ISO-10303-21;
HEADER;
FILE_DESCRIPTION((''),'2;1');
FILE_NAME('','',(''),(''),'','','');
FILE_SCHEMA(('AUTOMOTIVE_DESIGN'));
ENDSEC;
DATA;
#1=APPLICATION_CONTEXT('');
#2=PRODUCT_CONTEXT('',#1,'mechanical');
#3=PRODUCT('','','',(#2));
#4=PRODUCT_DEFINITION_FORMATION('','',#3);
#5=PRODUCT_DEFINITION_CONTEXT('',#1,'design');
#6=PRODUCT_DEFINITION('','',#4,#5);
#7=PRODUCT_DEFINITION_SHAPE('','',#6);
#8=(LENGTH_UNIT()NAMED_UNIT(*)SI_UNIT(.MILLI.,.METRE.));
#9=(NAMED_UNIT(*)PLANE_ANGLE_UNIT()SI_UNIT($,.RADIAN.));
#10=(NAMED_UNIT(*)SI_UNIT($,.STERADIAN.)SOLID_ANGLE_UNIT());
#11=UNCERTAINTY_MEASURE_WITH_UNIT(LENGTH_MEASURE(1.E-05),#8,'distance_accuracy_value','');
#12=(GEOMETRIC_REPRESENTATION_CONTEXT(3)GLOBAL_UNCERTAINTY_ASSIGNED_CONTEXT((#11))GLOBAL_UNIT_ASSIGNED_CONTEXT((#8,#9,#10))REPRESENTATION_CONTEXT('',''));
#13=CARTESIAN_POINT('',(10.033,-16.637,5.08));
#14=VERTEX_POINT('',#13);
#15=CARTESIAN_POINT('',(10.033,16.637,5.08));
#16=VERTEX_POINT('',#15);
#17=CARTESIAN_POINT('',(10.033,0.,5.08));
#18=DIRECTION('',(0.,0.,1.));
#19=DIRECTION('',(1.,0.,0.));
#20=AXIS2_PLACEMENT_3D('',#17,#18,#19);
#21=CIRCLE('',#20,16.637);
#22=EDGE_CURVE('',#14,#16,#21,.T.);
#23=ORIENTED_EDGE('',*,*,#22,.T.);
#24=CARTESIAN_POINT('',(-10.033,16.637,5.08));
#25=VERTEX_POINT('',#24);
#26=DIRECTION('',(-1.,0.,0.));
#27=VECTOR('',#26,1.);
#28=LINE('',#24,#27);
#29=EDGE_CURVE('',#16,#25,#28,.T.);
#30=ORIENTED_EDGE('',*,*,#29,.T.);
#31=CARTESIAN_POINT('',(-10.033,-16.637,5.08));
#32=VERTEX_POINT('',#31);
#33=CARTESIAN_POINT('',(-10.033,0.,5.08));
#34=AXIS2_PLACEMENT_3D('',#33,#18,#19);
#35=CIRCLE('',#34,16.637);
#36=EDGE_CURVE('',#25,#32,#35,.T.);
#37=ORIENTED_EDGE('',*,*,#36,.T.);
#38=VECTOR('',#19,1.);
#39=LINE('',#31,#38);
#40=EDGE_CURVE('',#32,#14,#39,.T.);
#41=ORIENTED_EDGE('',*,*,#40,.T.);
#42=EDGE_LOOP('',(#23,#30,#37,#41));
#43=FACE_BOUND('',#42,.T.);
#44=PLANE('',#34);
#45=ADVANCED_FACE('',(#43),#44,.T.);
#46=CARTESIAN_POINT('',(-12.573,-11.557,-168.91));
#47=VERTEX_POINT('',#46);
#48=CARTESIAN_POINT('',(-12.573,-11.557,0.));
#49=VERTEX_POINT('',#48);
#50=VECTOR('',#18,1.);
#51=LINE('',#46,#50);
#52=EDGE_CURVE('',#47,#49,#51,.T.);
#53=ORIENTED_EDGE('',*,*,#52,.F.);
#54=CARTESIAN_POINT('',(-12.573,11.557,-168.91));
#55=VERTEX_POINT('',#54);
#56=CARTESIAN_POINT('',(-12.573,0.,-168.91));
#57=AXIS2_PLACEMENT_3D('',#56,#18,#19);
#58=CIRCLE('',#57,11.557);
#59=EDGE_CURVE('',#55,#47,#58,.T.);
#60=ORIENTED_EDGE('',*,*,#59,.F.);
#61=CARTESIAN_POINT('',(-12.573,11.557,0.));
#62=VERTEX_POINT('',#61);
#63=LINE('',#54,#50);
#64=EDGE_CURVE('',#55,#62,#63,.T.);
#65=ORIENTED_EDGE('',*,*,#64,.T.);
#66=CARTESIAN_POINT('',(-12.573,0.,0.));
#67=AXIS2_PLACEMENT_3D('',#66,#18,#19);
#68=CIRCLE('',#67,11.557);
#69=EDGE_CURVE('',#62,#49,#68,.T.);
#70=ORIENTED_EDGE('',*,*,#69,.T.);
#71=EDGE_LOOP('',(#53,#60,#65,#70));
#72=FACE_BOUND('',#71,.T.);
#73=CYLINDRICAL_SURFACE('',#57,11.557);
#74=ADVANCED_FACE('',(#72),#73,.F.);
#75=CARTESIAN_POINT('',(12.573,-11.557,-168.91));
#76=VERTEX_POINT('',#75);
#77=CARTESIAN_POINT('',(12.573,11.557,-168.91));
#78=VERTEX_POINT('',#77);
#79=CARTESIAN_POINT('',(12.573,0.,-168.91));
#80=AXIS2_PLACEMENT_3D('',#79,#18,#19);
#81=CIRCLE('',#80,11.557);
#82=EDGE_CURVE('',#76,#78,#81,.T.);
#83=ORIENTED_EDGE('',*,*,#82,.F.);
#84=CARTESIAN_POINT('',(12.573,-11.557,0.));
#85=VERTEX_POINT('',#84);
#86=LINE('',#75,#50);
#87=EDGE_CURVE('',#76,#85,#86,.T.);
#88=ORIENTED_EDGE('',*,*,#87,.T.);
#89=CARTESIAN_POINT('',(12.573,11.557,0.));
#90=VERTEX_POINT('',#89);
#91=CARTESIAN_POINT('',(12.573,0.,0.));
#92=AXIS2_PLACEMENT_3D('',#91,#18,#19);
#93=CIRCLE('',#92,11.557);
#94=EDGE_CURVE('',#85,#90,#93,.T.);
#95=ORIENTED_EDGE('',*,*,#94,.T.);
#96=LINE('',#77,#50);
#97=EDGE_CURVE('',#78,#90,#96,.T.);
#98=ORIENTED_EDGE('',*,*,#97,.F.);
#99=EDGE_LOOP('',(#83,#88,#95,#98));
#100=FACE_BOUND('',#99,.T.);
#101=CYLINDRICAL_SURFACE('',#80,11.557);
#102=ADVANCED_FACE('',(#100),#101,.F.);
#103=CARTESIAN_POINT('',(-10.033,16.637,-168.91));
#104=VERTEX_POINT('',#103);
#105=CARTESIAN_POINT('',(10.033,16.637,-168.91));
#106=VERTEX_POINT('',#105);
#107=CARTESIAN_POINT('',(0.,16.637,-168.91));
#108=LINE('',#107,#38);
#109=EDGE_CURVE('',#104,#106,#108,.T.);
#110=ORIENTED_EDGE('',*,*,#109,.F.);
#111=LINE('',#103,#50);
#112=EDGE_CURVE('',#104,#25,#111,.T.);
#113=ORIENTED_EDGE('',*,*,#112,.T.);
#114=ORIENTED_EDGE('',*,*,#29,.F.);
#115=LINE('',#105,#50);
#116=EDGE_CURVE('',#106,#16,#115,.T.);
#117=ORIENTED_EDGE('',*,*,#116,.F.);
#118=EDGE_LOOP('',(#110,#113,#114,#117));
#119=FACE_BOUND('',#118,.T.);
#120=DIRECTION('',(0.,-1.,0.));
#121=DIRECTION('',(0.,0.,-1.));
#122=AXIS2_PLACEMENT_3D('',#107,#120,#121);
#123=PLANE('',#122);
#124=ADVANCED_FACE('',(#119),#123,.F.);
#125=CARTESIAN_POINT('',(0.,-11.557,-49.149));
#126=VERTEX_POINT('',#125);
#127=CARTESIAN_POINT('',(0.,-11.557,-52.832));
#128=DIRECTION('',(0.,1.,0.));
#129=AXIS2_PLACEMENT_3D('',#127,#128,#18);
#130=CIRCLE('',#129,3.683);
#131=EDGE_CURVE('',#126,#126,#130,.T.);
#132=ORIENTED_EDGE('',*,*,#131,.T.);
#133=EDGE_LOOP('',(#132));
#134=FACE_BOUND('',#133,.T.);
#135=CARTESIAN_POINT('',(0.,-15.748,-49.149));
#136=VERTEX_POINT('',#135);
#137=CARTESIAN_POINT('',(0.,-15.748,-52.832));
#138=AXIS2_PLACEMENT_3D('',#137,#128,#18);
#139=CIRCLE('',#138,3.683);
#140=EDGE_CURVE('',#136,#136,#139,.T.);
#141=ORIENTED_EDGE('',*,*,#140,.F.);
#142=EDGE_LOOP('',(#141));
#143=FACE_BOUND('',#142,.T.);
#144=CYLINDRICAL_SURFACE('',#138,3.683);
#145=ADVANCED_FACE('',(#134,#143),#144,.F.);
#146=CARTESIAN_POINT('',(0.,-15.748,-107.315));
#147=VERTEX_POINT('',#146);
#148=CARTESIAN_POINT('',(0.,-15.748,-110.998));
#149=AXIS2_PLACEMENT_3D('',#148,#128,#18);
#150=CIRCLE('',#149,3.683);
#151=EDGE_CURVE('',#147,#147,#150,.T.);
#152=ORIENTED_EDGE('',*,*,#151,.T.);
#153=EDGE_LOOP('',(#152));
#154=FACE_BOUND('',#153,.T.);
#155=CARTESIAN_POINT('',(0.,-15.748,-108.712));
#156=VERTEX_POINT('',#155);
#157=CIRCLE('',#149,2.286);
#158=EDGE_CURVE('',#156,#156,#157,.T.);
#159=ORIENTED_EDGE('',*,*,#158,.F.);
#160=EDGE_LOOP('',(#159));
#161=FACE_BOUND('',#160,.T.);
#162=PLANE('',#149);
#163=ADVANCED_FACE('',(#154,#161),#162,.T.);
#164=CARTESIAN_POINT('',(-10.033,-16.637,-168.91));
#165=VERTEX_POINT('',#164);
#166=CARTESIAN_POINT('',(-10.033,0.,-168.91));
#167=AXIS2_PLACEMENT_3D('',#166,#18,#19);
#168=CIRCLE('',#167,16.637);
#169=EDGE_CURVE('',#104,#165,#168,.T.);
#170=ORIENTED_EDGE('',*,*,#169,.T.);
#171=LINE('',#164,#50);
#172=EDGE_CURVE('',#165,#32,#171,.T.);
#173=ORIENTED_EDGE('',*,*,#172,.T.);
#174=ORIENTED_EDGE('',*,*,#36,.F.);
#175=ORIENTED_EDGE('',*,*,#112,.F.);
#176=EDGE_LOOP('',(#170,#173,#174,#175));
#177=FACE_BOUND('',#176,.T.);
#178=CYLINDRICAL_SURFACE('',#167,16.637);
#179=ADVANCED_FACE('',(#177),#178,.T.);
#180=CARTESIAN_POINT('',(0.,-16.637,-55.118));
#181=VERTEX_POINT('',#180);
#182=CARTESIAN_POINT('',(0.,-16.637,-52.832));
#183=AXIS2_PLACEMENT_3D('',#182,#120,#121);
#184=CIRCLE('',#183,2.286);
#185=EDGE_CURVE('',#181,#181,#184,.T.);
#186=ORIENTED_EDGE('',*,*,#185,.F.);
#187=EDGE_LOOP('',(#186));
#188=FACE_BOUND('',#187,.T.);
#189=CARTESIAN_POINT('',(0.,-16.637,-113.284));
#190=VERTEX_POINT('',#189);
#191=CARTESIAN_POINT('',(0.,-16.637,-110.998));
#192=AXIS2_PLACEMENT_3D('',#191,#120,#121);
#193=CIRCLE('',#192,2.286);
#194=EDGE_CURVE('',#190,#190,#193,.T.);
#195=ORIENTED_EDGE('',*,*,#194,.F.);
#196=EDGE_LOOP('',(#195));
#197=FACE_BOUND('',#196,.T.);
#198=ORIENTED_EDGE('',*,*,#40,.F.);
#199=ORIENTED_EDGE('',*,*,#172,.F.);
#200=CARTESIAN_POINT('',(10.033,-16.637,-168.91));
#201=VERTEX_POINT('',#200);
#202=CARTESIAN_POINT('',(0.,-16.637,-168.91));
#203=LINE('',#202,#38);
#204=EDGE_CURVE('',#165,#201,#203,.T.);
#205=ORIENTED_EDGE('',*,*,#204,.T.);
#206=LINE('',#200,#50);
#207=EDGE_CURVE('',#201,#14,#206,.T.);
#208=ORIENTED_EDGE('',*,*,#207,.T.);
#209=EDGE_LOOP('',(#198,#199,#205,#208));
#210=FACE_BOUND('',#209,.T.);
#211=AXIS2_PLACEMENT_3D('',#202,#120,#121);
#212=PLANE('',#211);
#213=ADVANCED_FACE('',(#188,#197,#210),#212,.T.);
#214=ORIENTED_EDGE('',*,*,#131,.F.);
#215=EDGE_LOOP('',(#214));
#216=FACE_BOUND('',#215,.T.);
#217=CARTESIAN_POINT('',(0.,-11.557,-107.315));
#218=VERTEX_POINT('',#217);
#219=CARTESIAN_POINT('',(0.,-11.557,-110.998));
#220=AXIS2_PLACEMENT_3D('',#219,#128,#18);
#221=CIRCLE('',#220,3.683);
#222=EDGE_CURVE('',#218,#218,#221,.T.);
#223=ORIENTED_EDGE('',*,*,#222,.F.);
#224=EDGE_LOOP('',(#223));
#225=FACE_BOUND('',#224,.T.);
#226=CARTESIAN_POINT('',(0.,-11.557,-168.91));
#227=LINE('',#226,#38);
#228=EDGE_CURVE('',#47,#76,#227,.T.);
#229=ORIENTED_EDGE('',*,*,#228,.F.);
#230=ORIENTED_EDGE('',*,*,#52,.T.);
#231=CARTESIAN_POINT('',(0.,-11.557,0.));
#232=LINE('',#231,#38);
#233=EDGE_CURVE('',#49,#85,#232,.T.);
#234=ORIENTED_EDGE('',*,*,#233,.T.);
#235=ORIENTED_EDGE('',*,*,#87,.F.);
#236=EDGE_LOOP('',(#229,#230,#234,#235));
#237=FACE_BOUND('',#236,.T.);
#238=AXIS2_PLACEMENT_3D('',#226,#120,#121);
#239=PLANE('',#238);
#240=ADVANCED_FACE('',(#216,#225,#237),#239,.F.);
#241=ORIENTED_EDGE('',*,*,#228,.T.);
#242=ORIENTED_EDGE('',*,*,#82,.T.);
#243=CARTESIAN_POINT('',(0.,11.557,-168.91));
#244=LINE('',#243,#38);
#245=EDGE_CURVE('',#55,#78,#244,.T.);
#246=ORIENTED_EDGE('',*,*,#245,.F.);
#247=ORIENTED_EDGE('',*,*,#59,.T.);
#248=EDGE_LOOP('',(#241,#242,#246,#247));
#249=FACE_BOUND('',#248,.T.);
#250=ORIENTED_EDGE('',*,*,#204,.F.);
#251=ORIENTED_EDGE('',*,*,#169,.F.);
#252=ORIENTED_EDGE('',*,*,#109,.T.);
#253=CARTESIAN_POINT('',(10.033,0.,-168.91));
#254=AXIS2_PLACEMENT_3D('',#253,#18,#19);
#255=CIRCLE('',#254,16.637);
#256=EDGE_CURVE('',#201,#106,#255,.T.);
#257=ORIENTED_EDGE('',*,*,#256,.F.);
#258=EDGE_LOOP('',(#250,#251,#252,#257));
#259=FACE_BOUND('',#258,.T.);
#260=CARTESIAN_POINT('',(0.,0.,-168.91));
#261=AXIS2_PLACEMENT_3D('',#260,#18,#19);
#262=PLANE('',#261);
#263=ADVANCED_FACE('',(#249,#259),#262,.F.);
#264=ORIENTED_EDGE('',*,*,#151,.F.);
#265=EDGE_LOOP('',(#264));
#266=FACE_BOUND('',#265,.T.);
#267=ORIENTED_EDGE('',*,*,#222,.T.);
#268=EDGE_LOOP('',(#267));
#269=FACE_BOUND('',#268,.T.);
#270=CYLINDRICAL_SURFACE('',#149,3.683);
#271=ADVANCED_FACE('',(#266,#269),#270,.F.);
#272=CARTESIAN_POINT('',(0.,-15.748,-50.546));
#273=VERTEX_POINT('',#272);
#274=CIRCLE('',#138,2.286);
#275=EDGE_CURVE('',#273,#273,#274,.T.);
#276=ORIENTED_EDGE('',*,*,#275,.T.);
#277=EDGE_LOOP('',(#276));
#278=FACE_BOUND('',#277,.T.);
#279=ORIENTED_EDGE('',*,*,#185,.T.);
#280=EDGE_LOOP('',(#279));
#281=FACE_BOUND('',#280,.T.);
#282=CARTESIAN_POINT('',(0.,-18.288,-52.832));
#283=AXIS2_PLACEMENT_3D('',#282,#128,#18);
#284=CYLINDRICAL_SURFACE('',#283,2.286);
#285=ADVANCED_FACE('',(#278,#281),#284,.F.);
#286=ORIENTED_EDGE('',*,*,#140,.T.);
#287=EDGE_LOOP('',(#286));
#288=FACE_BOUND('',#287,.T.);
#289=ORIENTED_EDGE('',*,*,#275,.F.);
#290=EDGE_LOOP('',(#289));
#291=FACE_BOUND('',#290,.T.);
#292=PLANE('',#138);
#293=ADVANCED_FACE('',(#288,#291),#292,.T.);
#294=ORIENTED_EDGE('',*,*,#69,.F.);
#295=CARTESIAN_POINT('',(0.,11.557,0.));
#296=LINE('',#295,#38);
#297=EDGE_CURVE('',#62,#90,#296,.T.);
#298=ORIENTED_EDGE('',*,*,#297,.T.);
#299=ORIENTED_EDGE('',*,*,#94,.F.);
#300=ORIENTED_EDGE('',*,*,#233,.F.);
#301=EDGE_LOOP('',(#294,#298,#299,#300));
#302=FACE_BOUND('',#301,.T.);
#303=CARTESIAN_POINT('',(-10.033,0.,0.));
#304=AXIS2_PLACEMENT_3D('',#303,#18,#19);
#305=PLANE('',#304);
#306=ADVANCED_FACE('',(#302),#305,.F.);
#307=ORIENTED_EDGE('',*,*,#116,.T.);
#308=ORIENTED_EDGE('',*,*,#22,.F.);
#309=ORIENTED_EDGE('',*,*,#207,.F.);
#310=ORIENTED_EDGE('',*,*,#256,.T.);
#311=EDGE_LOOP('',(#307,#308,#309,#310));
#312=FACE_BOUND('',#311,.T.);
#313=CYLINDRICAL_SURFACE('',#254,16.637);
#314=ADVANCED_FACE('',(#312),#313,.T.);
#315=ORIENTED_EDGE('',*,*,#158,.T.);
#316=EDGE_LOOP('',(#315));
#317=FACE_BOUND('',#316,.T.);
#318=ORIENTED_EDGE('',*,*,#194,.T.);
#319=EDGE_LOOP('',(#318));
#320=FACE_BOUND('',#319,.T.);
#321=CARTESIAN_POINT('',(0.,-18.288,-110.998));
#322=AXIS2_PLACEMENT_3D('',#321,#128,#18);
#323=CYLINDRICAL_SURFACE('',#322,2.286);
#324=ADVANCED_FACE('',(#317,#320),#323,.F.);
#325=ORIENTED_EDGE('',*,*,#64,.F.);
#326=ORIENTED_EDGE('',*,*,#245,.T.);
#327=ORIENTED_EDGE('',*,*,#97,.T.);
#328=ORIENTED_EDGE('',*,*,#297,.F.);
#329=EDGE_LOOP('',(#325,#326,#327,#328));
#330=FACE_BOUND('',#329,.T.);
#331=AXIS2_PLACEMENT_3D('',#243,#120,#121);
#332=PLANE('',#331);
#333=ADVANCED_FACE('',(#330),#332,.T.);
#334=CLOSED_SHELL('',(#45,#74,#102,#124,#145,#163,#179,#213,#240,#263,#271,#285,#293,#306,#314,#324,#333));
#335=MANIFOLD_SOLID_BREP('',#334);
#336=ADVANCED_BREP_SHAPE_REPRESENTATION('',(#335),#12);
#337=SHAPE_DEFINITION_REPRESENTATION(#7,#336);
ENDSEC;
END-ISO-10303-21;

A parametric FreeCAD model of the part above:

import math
import FreeCAD as App
import Part
import Sketcher

V = App.Vector
Q = App.Units.Quantity

doc = App.newDocument("Part")
body = doc.addObject("PartDesign::Body", "Body")

# Sketch on XY plane
sketch1 = body.newObject("Sketcher::SketchObject", "Sketch")
sketch1.AttachmentSupport = (doc.getObject("XY_Plane"), [""])
sketch1.MapMode = "FlatFace"
sketch1.addGeometry(Part.ArcOfCircle(Part.Circle(V(10.033, 0, 0), V(0, 0, 1), 16.637), math.radians(0), math.radians(90)), False)
sketch1.addGeometry(Part.LineSegment(V(10.033, 16.637, 0), V(-10.033, 16.637, 0)), False)
sketch1.addGeometry(Part.ArcOfCircle(Part.Circle(V(-10.033, 0, 0), V(0, 0, 1), 16.637), math.radians(90), math.radians(180)), False)
sketch1.addGeometry(Part.ArcOfCircle(Part.Circle(V(-10.033, 0, 0), V(0, 0, 1), 16.637), math.radians(180), math.radians(270)), False)
sketch1.addGeometry(Part.LineSegment(V(-10.033, -16.637, 0), V(10.033, -16.637, 0)), False)
sketch1.addGeometry(Part.ArcOfCircle(Part.Circle(V(10.033, 0, 0), V(0, 0, 1), 16.637), math.radians(-90), math.radians(0)), False)
sketch1.addGeometry(Part.ArcOfCircle(Part.Circle(V(-12.573, 0, 0), V(0, 0, 1), 11.557), math.radians(90), math.radians(180)), False)
sketch1.addGeometry(Part.LineSegment(V(-12.573, 11.557, 0), V(12.573, 11.557, 0)), False)
sketch1.addGeometry(Part.ArcOfCircle(Part.Circle(V(12.573, 0, 0), V(0, 0, 1), 11.557), math.radians(0), math.radians(90)), False)
sketch1.addGeometry(Part.ArcOfCircle(Part.Circle(V(12.573, 0, 0), V(0, 0, 1), 11.557), math.radians(-90), math.radians(0)), False)
sketch1.addGeometry(Part.LineSegment(V(12.573, -11.557, 0), V(-12.573, -11.557, 0)), False)
sketch1.addGeometry(Part.ArcOfCircle(Part.Circle(V(-12.573, 0, 0), V(0, 0, 1), 11.557), math.radians(-180), math.radians(-90)), False)
sketch1.addConstraint(Sketcher.Constraint("Tangent", 0, 2, 1, 1))
sketch1.addConstraint(Sketcher.Constraint("Tangent", 1, 2, 2, 1))
sketch1.addConstraint(Sketcher.Constraint("Tangent", 2, 2, 3, 1))
sketch1.addConstraint(Sketcher.Constraint("Tangent", 3, 2, 4, 1))
sketch1.addConstraint(Sketcher.Constraint("Tangent", 4, 2, 5, 1))
sketch1.addConstraint(Sketcher.Constraint("Tangent", 5, 2, 0, 1))
sketch1.addConstraint(Sketcher.Constraint("Tangent", 6, 1, 7, 1))
sketch1.addConstraint(Sketcher.Constraint("Tangent", 7, 2, 8, 2))
sketch1.addConstraint(Sketcher.Constraint("Tangent", 8, 1, 9, 2))
sketch1.addConstraint(Sketcher.Constraint("Tangent", 9, 1, 10, 1))
sketch1.addConstraint(Sketcher.Constraint("Tangent", 10, 2, 11, 2))
sketch1.addConstraint(Sketcher.Constraint("Tangent", 11, 1, 6, 2))
sketch1.addConstraint(Sketcher.Constraint("Horizontal", 1))
sketch1.addConstraint(Sketcher.Constraint("Horizontal", 4))
sketch1.addConstraint(Sketcher.Constraint("Horizontal", 7))
sketch1.addConstraint(Sketcher.Constraint("Horizontal", 10))
sketch1.addConstraint(Sketcher.Constraint("Equal", 0, 2))
sketch1.addConstraint(Sketcher.Constraint("Equal", 2, 3))
sketch1.addConstraint(Sketcher.Constraint("Equal", 6, 8))
sketch1.addConstraint(Sketcher.Constraint("Equal", 8, 9))
sketch1.addConstraint(Sketcher.Constraint("Symmetric", 0, 3, 2, 3, -1, 1))
sketch1.addConstraint(Sketcher.Constraint("Symmetric", 6, 3, 8, 3, -1, 1))
sketch1.addConstraint(Sketcher.Constraint("PointOnObject", 2, 2, -1))
sketch1.addConstraint(Sketcher.Constraint("PointOnObject", 5, 2, -1))
sketch1.addConstraint(Sketcher.Constraint("PointOnObject", 8, 1, -1))
sketch1.addConstraint(Sketcher.Constraint("PointOnObject", 11, 1, -1))
sketch1.addConstraint(Sketcher.Constraint("Radius", 0, Q("0.655 in")))
sketch1.addConstraint(Sketcher.Constraint("Radius", 6, Q("0.455 in")))
sketch1.addConstraint(Sketcher.Constraint("DistanceX", 1, 2, 1, 1, Q("0.79 in")))
sketch1.addConstraint(Sketcher.Constraint("DistanceX", 7, 1, 7, 2, Q("0.99 in")))
pad1 = body.newObject("PartDesign::Pad", "Pad")
pad1.Profile = sketch1
pad1.Length = Q("6.65 in")
pad1.Reversed = True

# Sketch on XY plane
sketch2 = body.newObject("Sketcher::SketchObject", "Sketch001")
sketch2.AttachmentSupport = (doc.getObject("XY_Plane"), [""])
sketch2.MapMode = "FlatFace"
sketch2.addGeometry(Part.LineSegment(V(10.033, 16.637, 0), V(-10.033, 16.637, 0)), False)
sketch2.addGeometry(Part.ArcOfCircle(Part.Circle(V(-10.033, 0, 0), V(0, 0, 1), 16.637), math.radians(90), math.radians(270)), False)
sketch2.addGeometry(Part.LineSegment(V(-10.033, -16.637, 0), V(10.033, -16.637, 0)), False)
sketch2.addGeometry(Part.ArcOfCircle(Part.Circle(V(10.033, 0, 0), V(0, 0, 1), 16.637), math.radians(-90), math.radians(90)), False)
sketch2.addConstraint(Sketcher.Constraint("Tangent", 0, 2, 1, 1))
sketch2.addConstraint(Sketcher.Constraint("Tangent", 1, 2, 2, 1))
sketch2.addConstraint(Sketcher.Constraint("Tangent", 2, 2, 3, 1))
sketch2.addConstraint(Sketcher.Constraint("Tangent", 3, 2, 0, 1))
sketch2.addConstraint(Sketcher.Constraint("Horizontal", 0))
sketch2.addConstraint(Sketcher.Constraint("Horizontal", 2))
sketch2.addConstraint(Sketcher.Constraint("Symmetric", 1, 3, 3, 3, -1, 1))
sketch2.addConstraint(Sketcher.Constraint("Radius", 1, Q("0.655 in")))
sketch2.addConstraint(Sketcher.Constraint("DistanceX", 0, 2, 0, 1, Q("0.79 in")))
pad2 = body.newObject("PartDesign::Pad", "Pad001")
pad2.Profile = sketch2
pad2.Length = Q("0.2 in")

# Sketch on XZ plane
sketch3 = body.newObject("Sketcher::SketchObject", "Sketch002")
sketch3.AttachmentSupport = (doc.getObject("XZ_Plane"), [""])
sketch3.MapMode = "FlatFace"
sketch3.AttachmentOffset = App.Placement(V(0, 0, 0.455 * 25.4), App.Rotation())
sketch3.addGeometry(Part.Circle(V(0, -110.998, 0), V(0, 0, 1), 3.683), False)
sketch3.addGeometry(Part.Circle(V(0, -52.832, 0), V(0, 0, 1), 3.683), False)
sketch3.addConstraint(Sketcher.Constraint("Equal", 0, 1))
sketch3.addConstraint(Sketcher.Constraint("PointOnObject", 0, 3, -2))
sketch3.addConstraint(Sketcher.Constraint("PointOnObject", 1, 3, -2))
sketch3.addConstraint(Sketcher.Constraint("Diameter", 0, Q("0.29 in")))
sketch3.addConstraint(Sketcher.Constraint("DistanceY", 0, 3, -1, 1, Q("4.37 in")))
sketch3.addConstraint(Sketcher.Constraint("DistanceY", 1, 3, -1, 1, Q("2.08 in")))
pocket1 = body.newObject("PartDesign::Pocket", "Pocket")
pocket1.Profile = sketch3
pocket1.Length = Q("0.165 in")
pocket1.Reversed = True

# Sketch on XZ plane
sketch4 = body.newObject("Sketcher::SketchObject", "Sketch003")
sketch4.AttachmentSupport = (doc.getObject("XZ_Plane"), [""])
sketch4.MapMode = "FlatFace"
sketch4.AttachmentOffset = App.Placement(V(0, 0, 0.455 * 25.4), App.Rotation())
sketch4.addGeometry(Part.Circle(V(0, -110.998, 0), V(0, 0, 1), 2.286), False)
sketch4.addGeometry(Part.Circle(V(0, -52.832, 0), V(0, 0, 1), 2.286), False)
sketch4.addConstraint(Sketcher.Constraint("Equal", 0, 1))
sketch4.addConstraint(Sketcher.Constraint("PointOnObject", 0, 3, -2))
sketch4.addConstraint(Sketcher.Constraint("PointOnObject", 1, 3, -2))
sketch4.addConstraint(Sketcher.Constraint("Diameter", 0, Q("0.18 in")))
sketch4.addConstraint(Sketcher.Constraint("DistanceY", 0, 3, -1, 1, Q("4.37 in")))
sketch4.addConstraint(Sketcher.Constraint("DistanceY", 1, 3, -1, 1, Q("2.08 in")))
pocket2 = body.newObject("PartDesign::Pocket", "Pocket001")
pocket2.Profile = sketch4
pocket2.Length = Q("0.265 in")
pocket2.Reversed = True

doc.recompute()
